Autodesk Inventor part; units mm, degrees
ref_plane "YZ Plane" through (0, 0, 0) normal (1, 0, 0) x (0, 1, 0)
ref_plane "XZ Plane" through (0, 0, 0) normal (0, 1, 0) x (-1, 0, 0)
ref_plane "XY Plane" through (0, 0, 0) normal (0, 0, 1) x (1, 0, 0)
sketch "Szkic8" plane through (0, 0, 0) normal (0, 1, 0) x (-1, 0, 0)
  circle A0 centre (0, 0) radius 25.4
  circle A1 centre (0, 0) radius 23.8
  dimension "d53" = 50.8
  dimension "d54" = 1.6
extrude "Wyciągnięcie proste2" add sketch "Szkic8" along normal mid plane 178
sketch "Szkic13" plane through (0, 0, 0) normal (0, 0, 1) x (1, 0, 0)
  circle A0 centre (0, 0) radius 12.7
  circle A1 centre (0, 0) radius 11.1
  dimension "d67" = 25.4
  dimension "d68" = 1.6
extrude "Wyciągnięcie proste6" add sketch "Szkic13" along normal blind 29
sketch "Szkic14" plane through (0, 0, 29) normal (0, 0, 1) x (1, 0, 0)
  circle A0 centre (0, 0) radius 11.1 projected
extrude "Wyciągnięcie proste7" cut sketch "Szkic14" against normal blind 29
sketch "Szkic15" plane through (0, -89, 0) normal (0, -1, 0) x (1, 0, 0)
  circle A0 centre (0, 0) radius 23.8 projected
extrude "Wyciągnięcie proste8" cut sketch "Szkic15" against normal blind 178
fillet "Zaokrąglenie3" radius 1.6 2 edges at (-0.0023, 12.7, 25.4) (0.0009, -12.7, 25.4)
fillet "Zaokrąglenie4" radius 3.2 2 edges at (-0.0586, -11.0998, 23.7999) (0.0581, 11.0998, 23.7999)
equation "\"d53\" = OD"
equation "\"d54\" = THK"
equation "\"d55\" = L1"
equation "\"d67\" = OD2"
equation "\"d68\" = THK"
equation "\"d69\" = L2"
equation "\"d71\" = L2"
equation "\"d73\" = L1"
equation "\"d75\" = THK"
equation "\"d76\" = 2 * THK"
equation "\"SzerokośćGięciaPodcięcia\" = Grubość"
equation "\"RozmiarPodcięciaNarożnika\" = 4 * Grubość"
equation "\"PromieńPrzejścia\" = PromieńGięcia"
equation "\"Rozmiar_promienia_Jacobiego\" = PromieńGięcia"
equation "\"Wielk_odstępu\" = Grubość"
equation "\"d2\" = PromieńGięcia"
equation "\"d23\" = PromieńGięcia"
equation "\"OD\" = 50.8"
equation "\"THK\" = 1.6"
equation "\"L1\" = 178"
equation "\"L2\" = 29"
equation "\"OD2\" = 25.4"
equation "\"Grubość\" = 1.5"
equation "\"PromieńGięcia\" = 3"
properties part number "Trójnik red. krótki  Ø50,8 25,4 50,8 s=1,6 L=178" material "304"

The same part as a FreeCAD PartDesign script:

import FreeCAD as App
import Part
import Sketcher


def edges_at(feature, points):
    """Names of the edges that pass closest to the given points."""
    edges = feature.Shape.Edges
    near = lambda p: min(range(len(edges)), key=lambda i: edges[i].distToShape(Part.Vertex(*p))[0])
    return sorted({f"Edge{near(p) + 1}" for p in points})

doc = App.newDocument("Part")
body = doc.addObject("PartDesign::Body", "Body")

# Sketch on XZ plane
sketch1 = body.newObject("Sketcher::SketchObject", "Sketch")
sketch1.AttachmentSupport = (doc.getObject("XZ_Plane"), [""])
sketch1.MapMode = "FlatFace"
sketch1.addGeometry([
    Part.Circle(App.Vector(0, 0, 0), App.Vector(0, 0, 1), 25),
    Part.Circle(App.Vector(0, 0, 0), App.Vector(0, 0, 1), 24),
], False)
sketch1.addConstraint([
    Sketcher.Constraint("Coincident", 0, 3, -1, 1),
    Sketcher.Constraint("Coincident", 1, 3, -1, 1),
    Sketcher.Constraint("Diameter", 0, 50.8),
    Sketcher.Constraint("Diameter", 1, 47.6),
])
pad1 = body.newObject("PartDesign::Pad", "Pad")
pad1.Profile = sketch1
pad1.Length = 178
pad1.Midplane = True

# Sketch on XY plane
sketch2 = body.newObject("Sketcher::SketchObject", "Sketch001")
sketch2.AttachmentSupport = (doc.getObject("XY_Plane"), [""])
sketch2.MapMode = "FlatFace"
sketch2.addGeometry([
    Part.Circle(App.Vector(0, 0, 0), App.Vector(0, 0, 1), 13),
    Part.Circle(App.Vector(0, 0, 0), App.Vector(0, 0, 1), 11),
], False)
sketch2.addConstraint([
    Sketcher.Constraint("Coincident", 0, 3, -1, 1),
    Sketcher.Constraint("Coincident", 1, 3, -1, 1),
    Sketcher.Constraint("Diameter", 0, 25.4),
    Sketcher.Constraint("Diameter", 1, 22.2),
])
pad2 = body.newObject("PartDesign::Pad", "Pad001")
pad2.Profile = sketch2
pad2.Length = 29

# Sketch on XY plane
sketch3 = body.newObject("Sketcher::SketchObject", "Sketch002")
sketch3.AttachmentSupport = (doc.getObject("XY_Plane"), [""])
sketch3.MapMode = "FlatFace"
sketch3.AttachmentOffset = App.Placement(App.Vector(0, 0, 29), App.Rotation())
sketch3.addGeometry(Part.Circle(App.Vector(0, 0, 0), App.Vector(0, 0, 1), 11), False)
sketch3.addConstraint([
    Sketcher.Constraint("Coincident", 0, 3, -1, 1),
    Sketcher.Constraint("Diameter", 0, 22.2),
])
pocket1 = body.newObject("PartDesign::Pocket", "Pocket")
pocket1.Profile = sketch3
pocket1.Length = 29

# Sketch on XZ plane
sketch4 = body.newObject("Sketcher::SketchObject", "Sketch003")
sketch4.AttachmentSupport = (doc.getObject("XZ_Plane"), [""])
sketch4.MapMode = "FlatFace"
sketch4.AttachmentOffset = App.Placement(App.Vector(0, 0, 89), App.Rotation())
sketch4.addGeometry(Part.Circle(App.Vector(0, 0, 0), App.Vector(0, 0, 1), 24), False)
sketch4.addConstraint([
    Sketcher.Constraint("Coincident", 0, 3, -1, 1),
    Sketcher.Constraint("Diameter", 0, 47.6),
])
pocket2 = body.newObject("PartDesign::Pocket", "Pocket001")
pocket2.Profile = sketch4
pocket2.Length = 178
doc.recompute()

fillet = body.newObject("PartDesign::Fillet", "Fillet")
fillet.Base = (pocket2, edges_at(pocket2, [(-0.002, 12.7, 25.4), (0.001, -12.7, 25.4)]))
fillet.Radius = 1.6
doc.recompute()

fillet2 = body.newObject("PartDesign::Fillet", "Fillet001")
fillet2.Base = (fillet, edges_at(fillet, [(-0.059, -11.1, 23.8), (0.058, 11.1, 23.8)]))
fillet2.Radius = 3.2

doc.recompute()
